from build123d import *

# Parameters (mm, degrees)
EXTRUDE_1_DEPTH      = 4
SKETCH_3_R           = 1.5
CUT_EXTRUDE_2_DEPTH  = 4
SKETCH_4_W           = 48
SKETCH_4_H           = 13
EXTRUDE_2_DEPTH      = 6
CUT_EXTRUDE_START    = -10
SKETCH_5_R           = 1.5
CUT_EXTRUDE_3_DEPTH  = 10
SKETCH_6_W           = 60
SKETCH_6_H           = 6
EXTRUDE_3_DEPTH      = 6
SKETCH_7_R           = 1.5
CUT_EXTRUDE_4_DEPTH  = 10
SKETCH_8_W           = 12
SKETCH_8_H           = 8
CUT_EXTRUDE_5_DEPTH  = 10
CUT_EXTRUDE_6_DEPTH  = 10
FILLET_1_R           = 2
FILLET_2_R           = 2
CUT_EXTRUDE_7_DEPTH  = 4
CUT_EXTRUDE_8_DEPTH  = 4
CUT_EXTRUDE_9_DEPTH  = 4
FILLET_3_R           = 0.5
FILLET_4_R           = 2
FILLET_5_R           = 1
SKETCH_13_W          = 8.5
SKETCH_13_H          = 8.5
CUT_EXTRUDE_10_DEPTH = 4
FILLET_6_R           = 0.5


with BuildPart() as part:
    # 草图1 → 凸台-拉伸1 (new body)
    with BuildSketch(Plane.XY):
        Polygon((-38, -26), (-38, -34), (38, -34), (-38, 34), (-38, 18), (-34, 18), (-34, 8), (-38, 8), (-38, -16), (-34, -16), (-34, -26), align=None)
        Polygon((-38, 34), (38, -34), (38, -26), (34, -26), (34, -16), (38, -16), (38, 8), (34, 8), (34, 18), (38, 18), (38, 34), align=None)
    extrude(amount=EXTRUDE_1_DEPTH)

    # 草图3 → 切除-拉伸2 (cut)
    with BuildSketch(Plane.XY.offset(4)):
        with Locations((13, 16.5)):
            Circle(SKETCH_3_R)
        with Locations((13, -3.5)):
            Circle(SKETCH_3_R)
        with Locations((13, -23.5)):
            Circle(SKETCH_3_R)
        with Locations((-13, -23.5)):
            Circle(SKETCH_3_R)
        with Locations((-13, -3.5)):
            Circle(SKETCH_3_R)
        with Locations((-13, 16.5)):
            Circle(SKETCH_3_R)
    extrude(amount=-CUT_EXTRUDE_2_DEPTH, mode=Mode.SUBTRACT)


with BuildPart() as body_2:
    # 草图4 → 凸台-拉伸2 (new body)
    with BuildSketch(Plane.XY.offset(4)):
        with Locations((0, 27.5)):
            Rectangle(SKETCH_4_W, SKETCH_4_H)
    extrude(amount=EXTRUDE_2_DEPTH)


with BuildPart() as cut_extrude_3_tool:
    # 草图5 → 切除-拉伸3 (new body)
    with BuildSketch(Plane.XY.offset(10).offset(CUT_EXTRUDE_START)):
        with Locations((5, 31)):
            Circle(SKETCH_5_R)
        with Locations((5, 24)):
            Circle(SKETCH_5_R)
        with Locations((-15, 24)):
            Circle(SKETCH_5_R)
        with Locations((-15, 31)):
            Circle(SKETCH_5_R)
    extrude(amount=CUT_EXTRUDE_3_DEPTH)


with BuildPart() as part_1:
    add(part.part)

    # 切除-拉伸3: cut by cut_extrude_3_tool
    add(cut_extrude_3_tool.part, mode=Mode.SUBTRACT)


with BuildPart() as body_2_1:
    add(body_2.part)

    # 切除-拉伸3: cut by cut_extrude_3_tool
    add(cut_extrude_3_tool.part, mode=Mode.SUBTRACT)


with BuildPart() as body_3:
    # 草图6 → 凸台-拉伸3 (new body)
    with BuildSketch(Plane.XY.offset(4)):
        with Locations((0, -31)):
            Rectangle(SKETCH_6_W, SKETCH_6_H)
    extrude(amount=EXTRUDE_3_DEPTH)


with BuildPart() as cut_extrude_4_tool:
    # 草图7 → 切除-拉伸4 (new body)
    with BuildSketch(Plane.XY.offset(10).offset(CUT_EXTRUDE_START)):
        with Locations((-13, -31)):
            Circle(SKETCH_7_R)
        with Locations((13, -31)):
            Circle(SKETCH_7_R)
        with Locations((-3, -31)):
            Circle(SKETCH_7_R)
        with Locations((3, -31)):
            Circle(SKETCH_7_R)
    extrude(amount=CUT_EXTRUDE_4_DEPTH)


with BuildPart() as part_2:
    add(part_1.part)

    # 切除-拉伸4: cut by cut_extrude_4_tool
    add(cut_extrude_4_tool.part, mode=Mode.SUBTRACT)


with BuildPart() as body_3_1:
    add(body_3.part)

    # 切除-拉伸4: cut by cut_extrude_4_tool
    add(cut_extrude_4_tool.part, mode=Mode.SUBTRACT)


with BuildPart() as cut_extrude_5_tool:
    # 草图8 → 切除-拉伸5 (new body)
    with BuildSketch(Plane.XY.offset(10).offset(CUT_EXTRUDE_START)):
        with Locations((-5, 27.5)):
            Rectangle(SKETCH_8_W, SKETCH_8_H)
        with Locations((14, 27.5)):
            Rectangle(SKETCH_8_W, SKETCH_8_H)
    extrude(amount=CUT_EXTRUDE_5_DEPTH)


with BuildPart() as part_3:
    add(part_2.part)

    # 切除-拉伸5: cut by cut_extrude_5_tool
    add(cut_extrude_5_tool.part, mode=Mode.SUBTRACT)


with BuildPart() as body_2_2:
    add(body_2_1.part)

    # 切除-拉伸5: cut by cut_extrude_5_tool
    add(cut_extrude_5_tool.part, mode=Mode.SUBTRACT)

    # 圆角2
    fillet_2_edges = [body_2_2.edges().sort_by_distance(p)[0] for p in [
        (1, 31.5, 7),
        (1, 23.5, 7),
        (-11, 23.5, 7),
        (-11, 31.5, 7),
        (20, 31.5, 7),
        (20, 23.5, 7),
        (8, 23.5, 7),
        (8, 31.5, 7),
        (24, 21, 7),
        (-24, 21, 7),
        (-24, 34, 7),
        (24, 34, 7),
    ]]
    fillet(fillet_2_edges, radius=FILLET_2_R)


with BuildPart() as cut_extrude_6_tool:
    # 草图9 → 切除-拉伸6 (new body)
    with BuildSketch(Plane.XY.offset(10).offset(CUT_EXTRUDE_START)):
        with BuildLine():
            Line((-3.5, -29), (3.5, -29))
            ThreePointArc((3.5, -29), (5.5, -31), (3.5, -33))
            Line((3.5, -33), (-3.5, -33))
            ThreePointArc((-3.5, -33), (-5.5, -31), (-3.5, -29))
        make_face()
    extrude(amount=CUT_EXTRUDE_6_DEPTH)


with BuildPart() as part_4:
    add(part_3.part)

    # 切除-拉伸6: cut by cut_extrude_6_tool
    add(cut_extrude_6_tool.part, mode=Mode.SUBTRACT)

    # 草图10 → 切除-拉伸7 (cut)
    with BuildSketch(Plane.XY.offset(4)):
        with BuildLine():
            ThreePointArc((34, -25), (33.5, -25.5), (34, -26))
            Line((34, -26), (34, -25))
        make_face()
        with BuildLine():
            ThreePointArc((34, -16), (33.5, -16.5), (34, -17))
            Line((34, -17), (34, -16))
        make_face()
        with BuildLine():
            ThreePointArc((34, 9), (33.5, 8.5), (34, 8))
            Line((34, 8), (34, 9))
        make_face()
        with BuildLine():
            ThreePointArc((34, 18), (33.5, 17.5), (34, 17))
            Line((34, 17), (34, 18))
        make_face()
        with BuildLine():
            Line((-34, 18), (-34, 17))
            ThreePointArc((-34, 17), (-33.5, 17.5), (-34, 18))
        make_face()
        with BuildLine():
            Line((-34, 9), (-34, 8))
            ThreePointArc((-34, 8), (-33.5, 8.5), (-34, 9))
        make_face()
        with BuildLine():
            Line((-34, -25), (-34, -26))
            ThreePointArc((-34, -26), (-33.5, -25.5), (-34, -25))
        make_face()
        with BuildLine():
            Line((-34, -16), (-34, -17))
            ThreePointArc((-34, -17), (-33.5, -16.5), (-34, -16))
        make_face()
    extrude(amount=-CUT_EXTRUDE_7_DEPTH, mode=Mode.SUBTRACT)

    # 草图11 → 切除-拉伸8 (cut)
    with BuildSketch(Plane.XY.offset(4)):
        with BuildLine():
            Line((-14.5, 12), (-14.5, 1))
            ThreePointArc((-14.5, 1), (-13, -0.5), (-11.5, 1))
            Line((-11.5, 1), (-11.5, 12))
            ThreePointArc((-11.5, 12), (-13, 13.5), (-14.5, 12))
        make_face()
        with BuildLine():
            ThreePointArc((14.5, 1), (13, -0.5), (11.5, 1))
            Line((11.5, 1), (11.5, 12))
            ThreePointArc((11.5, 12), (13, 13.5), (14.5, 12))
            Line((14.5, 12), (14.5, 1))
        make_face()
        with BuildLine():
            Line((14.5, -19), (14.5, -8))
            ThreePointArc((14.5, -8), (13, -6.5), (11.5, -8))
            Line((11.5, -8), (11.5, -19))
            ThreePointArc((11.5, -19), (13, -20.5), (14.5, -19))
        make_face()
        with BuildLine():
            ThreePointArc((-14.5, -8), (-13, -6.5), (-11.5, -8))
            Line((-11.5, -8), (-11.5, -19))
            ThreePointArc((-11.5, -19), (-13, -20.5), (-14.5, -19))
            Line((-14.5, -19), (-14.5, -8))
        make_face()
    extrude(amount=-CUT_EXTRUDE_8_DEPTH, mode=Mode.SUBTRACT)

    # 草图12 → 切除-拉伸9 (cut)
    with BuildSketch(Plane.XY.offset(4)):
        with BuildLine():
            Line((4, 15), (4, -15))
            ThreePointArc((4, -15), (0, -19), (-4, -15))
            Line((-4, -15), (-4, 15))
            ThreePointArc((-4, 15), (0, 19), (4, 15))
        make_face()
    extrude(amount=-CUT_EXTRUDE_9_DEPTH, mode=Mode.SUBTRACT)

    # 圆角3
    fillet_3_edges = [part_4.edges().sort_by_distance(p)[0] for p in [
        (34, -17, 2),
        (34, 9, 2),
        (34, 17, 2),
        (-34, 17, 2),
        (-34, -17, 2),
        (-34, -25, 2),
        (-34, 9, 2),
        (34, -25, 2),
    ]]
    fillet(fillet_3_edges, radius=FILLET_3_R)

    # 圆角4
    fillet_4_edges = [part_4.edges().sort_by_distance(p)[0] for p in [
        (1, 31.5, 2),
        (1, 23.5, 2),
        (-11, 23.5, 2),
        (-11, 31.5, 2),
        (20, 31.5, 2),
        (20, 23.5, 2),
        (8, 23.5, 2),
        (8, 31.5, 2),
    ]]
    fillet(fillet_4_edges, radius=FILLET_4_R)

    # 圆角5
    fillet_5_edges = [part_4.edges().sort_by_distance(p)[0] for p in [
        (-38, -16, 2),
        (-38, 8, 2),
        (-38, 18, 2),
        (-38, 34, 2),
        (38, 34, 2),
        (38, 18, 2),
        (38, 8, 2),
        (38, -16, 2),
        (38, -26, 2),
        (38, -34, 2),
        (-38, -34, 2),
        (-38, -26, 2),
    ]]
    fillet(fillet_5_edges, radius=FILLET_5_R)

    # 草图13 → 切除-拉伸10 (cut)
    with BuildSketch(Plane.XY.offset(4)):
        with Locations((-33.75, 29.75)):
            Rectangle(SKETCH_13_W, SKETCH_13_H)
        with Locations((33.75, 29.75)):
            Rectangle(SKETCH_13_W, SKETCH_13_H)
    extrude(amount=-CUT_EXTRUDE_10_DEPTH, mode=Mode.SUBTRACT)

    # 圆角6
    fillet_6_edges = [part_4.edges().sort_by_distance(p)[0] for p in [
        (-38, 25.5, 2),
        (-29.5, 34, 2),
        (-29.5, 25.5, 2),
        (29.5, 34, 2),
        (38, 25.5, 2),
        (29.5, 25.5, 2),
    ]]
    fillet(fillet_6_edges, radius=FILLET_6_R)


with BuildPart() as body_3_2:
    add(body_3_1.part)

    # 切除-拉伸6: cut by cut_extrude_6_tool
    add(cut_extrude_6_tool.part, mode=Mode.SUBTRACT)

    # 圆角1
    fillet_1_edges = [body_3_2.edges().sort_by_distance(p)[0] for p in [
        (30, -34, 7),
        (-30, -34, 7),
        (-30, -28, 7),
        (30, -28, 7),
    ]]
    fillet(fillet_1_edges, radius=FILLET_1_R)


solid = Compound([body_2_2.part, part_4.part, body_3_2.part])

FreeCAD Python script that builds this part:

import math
import FreeCAD as App
import Part
import Sketcher

V = App.Vector
Q = App.Units.Quantity


def edges_at(feature, points):
    """Names of the edges that pass closest to the given points."""
    edges = feature.Shape.Edges
    near = lambda p: min(range(len(edges)), key=lambda i: edges[i].distToShape(Part.Vertex(*p))[0])
    return sorted({f"Edge{near(p) + 1}" for p in points})

doc = App.newDocument("Part")
body = doc.addObject("PartDesign::Body", "Body")

sketch1 = body.newObject("Sketcher::SketchObject", "Sketch")
sketch1.AttachmentSupport = (doc.getObject("XY_Plane"), [""])
sketch1.MapMode = "FlatFace"
sketch1.addGeometry(Part.LineSegment(V(-38, -26, 0), V(-38, -34, 0)), False)
sketch1.addGeometry(Part.LineSegment(V(-38, -34, 0), V(38, -34, 0)), False)
sketch1.addGeometry(Part.LineSegment(V(38, -34, 0), V(38, -26, 0)), False)
sketch1.addGeometry(Part.LineSegment(V(38, -26, 0), V(34, -26, 0)), False)
sketch1.addGeometry(Part.LineSegment(V(34, -26, 0), V(34, -16, 0)), False)
sketch1.addGeometry(Part.LineSegment(V(34, -16, 0), V(38, -16, 0)), False)
sketch1.addGeometry(Part.LineSegment(V(38, -16, 0), V(38, 8, 0)), False)
sketch1.addGeometry(Part.LineSegment(V(38, 8, 0), V(34, 8, 0)), False)
sketch1.addGeometry(Part.LineSegment(V(34, 8, 0), V(34, 18, 0)), False)
sketch1.addGeometry(Part.LineSegment(V(34, 18, 0), V(38, 18, 0)), False)
sketch1.addGeometry(Part.LineSegment(V(38, 18, 0), V(38, 34, 0)), False)
sketch1.addGeometry(Part.LineSegment(V(38, 34, 0), V(-38, 34, 0)), False)
sketch1.addGeometry(Part.LineSegment(V(-38, 34, 0), V(-38, 18, 0)), False)
sketch1.addGeometry(Part.LineSegment(V(-38, 18, 0), V(-34, 18, 0)), False)
sketch1.addGeometry(Part.LineSegment(V(-34, 18, 0), V(-34, 8, 0)), False)
sketch1.addGeometry(Part.LineSegment(V(-34, 8, 0), V(-38, 8, 0)), False)
sketch1.addGeometry(Part.LineSegment(V(-38, 8, 0), V(-38, -16, 0)), False)
sketch1.addGeometry(Part.LineSegment(V(-38, -16, 0), V(-34, -16, 0)), False)
sketch1.addGeometry(Part.LineSegment(V(-34, -16, 0), V(-34, -26, 0)), False)
sketch1.addGeometry(Part.LineSegment(V(-34, -26, 0), V(-38, -26, 0)), False)
sketch1.addConstraint(Sketcher.Constraint("Coincident", 0, 2, 1, 1))
sketch1.addConstraint(Sketcher.Constraint("Coincident", 1, 2, 2, 1))
sketch1.addConstraint(Sketcher.Constraint("Coincident", 2, 2, 3, 1))
sketch1.addConstraint(Sketcher.Constraint("Coincident", 3, 2, 4, 1))
sketch1.addConstraint(Sketcher.Constraint("Coincident", 4, 2, 5, 1))
sketch1.addConstraint(Sketcher.Constraint("Coincident", 5, 2, 6, 1))
sketch1.addConstraint(Sketcher.Constraint("Coincident", 6, 2, 7, 1))
sketch1.addConstraint(Sketcher.Constraint("Coincident", 7, 2, 8, 1))
sketch1.addConstraint(Sketcher.Constraint("Coincident", 8, 2, 9, 1))
sketch1.addConstraint(Sketcher.Constraint("Coincident", 9, 2, 10, 1))
sketch1.addConstraint(Sketcher.Constraint("Coincident", 10, 2, 11, 1))
sketch1.addConstraint(Sketcher.Constraint("Coincident", 11, 2, 12, 1))
sketch1.addConstraint(Sketcher.Constraint("Coincident", 12, 2, 13, 1))
sketch1.addConstraint(Sketcher.Constraint("Coincident", 13, 2, 14, 1))
sketch1.addConstraint(Sketcher.Constraint("Coincident", 14, 2, 15, 1))
sketch1.addConstraint(Sketcher.Constraint("Coincident", 15, 2, 16, 1))
sketch1.addConstraint(Sketcher.Constraint("Coincident", 16, 2, 17, 1))
sketch1.addConstraint(Sketcher.Constraint("Coincident", 17, 2, 18, 1))
sketch1.addConstraint(Sketcher.Constraint("Coincident", 18, 2, 19, 1))
sketch1.addConstraint(Sketcher.Constraint("Coincident", 19, 2, 0, 1))
sketch1.addConstraint(Sketcher.Constraint("Vertical", 0))
sketch1.addConstraint(Sketcher.Constraint("Horizontal", 1))
sketch1.addConstraint(Sketcher.Constraint("Vertical", 2))
sketch1.addConstraint(Sketcher.Constraint("Horizontal", 3))
sketch1.addConstraint(Sketcher.Constraint("Vertical", 4))
sketch1.addConstraint(Sketcher.Constraint("Horizontal", 5))
sketch1.addConstraint(Sketcher.Constraint("Vertical", 6))
sketch1.addConstraint(Sketcher.Constraint("Horizontal", 7))
sketch1.addConstraint(Sketcher.Constraint("Vertical", 8))
sketch1.addConstraint(Sketcher.Constraint("Horizontal", 9))
sketch1.addConstraint(Sketcher.Constraint("Vertical", 10))
sketch1.addConstraint(Sketcher.Constraint("Horizontal", 11))
sketch1.addConstraint(Sketcher.Constraint("Vertical", 12))
sketch1.addConstraint(Sketcher.Constraint("Horizontal", 13))
sketch1.addConstraint(Sketcher.Constraint("Vertical", 14))
sketch1.addConstraint(Sketcher.Constraint("Horizontal", 15))
sketch1.addConstraint(Sketcher.Constraint("Vertical", 16))
sketch1.addConstraint(Sketcher.Constraint("Horizontal", 17))
sketch1.addConstraint(Sketcher.Constraint("Vertical", 18))
sketch1.addConstraint(Sketcher.Constraint("Horizontal", 19))
sketch1.addConstraint(Sketcher.Constraint("Symmetric", 0, 2, 10, 2, -1, 1))
sketch1.addConstraint(Sketcher.Constraint("Symmetric", 9, 2, 12, 2, -2))
sketch1.addConstraint(Sketcher.Constraint("Symmetric", 7, 2, 14, 2, -2))
sketch1.addConstraint(Sketcher.Constraint("Symmetric", 5, 2, 16, 2, -2))
sketch1.addConstraint(Sketcher.Constraint("Symmetric", 3, 2, 18, 2, -2))
sketch1.addConstraint(Sketcher.Constraint("Vertical", 2, 2, 5, 2))
sketch1.addConstraint(Sketcher.Constraint("Vertical", 4, 2, 7, 2))
sketch1.addConstraint(Sketcher.Constraint("Vertical", 6, 2, 9, 2))
sketch1.addConstraint(Sketcher.Constraint("Equal", 4, 8))
sketch1.addConstraint(Sketcher.Constraint("DistanceX", 1, 1, 1, 2, Q("76 mm")))
sketch1.addConstraint(Sketcher.Constraint("DistanceX", 3, 2, 3, 1, Q("4 mm")))
sketch1.addConstraint(Sketcher.Constraint("DistanceY", 0, 2, 0, 1, Q("8 mm")))
sketch1.addConstraint(Sketcher.Constraint("DistanceY", 4, 1, 4, 2, Q("10 mm")))
sketch1.addConstraint(Sketcher.Constraint("DistanceY", 6, 1, 6, 2, Q("24 mm")))
sketch1.addConstraint(Sketcher.Constraint("DistanceY", 10, 1, 10, 2, Q("16 mm")))
pad1 = body.newObject("PartDesign::Pad", "Pad")
pad1.Profile = sketch1
pad1.Length = 4

sketch2 = body.newObject("Sketcher::SketchObject", "Sketch001")
sketch2.AttachmentSupport = (doc.getObject("XY_Plane"), [""])
sketch2.MapMode = "FlatFace"
sketch2.AttachmentOffset = App.Placement(V(0, 0, 4), App.Rotation())
sketch2.addGeometry(Part.Circle(V(13, 16.5, 0), V(0, 0, 1), 1.5), False)
sketch2.addGeometry(Part.Circle(V(13, -3.5, 0), V(0, 0, 1), 1.5), False)
sketch2.addGeometry(Part.Circle(V(13, -23.5, 0), V(0, 0, 1), 1.5), False)
sketch2.addGeometry(Part.Circle(V(-13, -23.5, 0), V(0, 0, 1), 1.5), False)
sketch2.addGeometry(Part.Circle(V(-13, -3.5, 0), V(0, 0, 1), 1.5), False)
sketch2.addGeometry(Part.Circle(V(-13, 16.5, 0), V(0, 0, 1), 1.5), False)
sketch2.addConstraint(Sketcher.Constraint("Equal", 0, 1))
sketch2.addConstraint(Sketcher.Constraint("Equal", 1, 2))
sketch2.addConstraint(Sketcher.Constraint("Equal", 2, 3))
sketch2.addConstraint(Sketcher.Constraint("Equal", 3, 4))
sketch2.addConstraint(Sketcher.Constraint("Equal", 4, 5))
sketch2.addConstraint(Sketcher.Constraint("Symmetric", 2, 3, 3, 3, -2))
sketch2.addConstraint(Sketcher.Constraint("Symmetric", 1, 3, 4, 3, -2))
sketch2.addConstraint(Sketcher.Constraint("Symmetric", 0, 3, 5, 3, -2))
sketch2.addConstraint(Sketcher.Constraint("Vertical", 0, 3, 1, 3))
sketch2.addConstraint(Sketcher.Constraint("Vertical", 1, 3, 2, 3))
sketch2.addConstraint(Sketcher.Constraint("Diameter", 0, Q("3 mm")))
sketch2.addConstraint(Sketcher.Constraint("DistanceX", -1, 1, 0, 3, Q("13 mm")))
sketch2.addConstraint(Sketcher.Constraint("DistanceY", 1, 3, 0, 3, Q("20 mm")))
sketch2.addConstraint(Sketcher.Constraint("DistanceY", 2, 3, 1, 3, Q("20 mm")))
sketch2.addConstraint(Sketcher.Constraint("DistanceY", -1, 1, 0, 3, Q("16.5 mm")))
pocket1 = body.newObject("PartDesign::Pocket", "Pocket")
pocket1.Profile = sketch2
pocket1.Length = 4
body2 = doc.addObject("PartDesign::Body", "Body001")

sketch3 = body2.newObject("Sketcher::SketchObject", "Sketch002")
sketch3.AttachmentSupport = (doc.getObject("XY_Plane001"), [""])
sketch3.MapMode = "FlatFace"
sketch3.AttachmentOffset = App.Placement(V(0, 0, 4), App.Rotation())
sketch3.addGeometry(Part.LineSegment(V(-24, 34, 0), V(-24, 21, 0)), False)
sketch3.addGeometry(Part.LineSegment(V(-24, 21, 0), V(24, 21, 0)), False)
sketch3.addGeometry(Part.LineSegment(V(24, 21, 0), V(24, 34, 0)), False)
sketch3.addGeometry(Part.LineSegment(V(24, 34, 0), V(-24, 34, 0)), False)
sketch3.addConstraint(Sketcher.Constraint("Coincident", 0, 2, 1, 1))
sketch3.addConstraint(Sketcher.Constraint("Coincident", 1, 2, 2, 1))
sketch3.addConstraint(Sketcher.Constraint("Coincident", 2, 2, 3, 1))
sketch3.addConstraint(Sketcher.Constraint("Coincident", 3, 2, 0, 1))
sketch3.addConstraint(Sketcher.Constraint("Vertical", 0))
sketch3.addConstraint(Sketcher.Constraint("Horizontal", 1))
sketch3.addConstraint(Sketcher.Constraint("Vertical", 2))
sketch3.addConstraint(Sketcher.Constraint("Horizontal", 3))
sketch3.addConstraint(Sketcher.Constraint("DistanceX", 1, 1, 1, 2, Q("48 mm")))
sketch3.addConstraint(Sketcher.Constraint("DistanceY", 0, 2, 0, 1, Q("13 mm")))
sketch3.addConstraint(Sketcher.Constraint("DistanceX", 0, 2, -1, 1, Q("24 mm")))
sketch3.addConstraint(Sketcher.Constraint("DistanceY", -1, 1, 0, 2, Q("21 mm")))
pad2 = body2.newObject("PartDesign::Pad", "Pad001")
pad2.Profile = sketch3
pad2.Length = 6
body3 = doc.addObject("PartDesign::Body", "Body002")
body3.AllowCompound = True

sketch4 = body3.newObject("Sketcher::SketchObject", "Sketch003")
sketch4.AttachmentSupport = (doc.getObject("XY_Plane002"), [""])
sketch4.MapMode = "FlatFace"
sketch4.addGeometry(Part.Circle(V(5, 31, 0), V(0, 0, 1), 1.5), False)
sketch4.addGeometry(Part.Circle(V(5, 24, 0), V(0, 0, 1), 1.5), False)
sketch4.addGeometry(Part.Circle(V(-15, 24, 0), V(0, 0, 1), 1.5), False)
sketch4.addGeometry(Part.Circle(V(-15, 31, 0), V(0, 0, 1), 1.5), False)
sketch4.addConstraint(Sketcher.Constraint("Equal", 0, 1))
sketch4.addConstraint(Sketcher.Constraint("Equal", 1, 2))
sketch4.addConstraint(Sketcher.Constraint("Equal", 2, 3))
sketch4.addConstraint(Sketcher.Constraint("Horizontal", 1, 3, 2, 3))
sketch4.addConstraint(Sketcher.Constraint("Horizontal", 0, 3, 3, 3))
sketch4.addConstraint(Sketcher.Constraint("Vertical", 0, 3, 1, 3))
sketch4.addConstraint(Sketcher.Constraint("Vertical", 2, 3, 3, 3))
sketch4.addConstraint(Sketcher.Constraint("Diameter", 0, Q("3 mm")))
sketch4.addConstraint(Sketcher.Constraint("DistanceX", -1, 1, 0, 3, Q("5 mm")))
sketch4.addConstraint(Sketcher.Constraint("DistanceY", -1, 1, 0, 3, Q("31 mm")))
sketch4.addConstraint(Sketcher.Constraint("DistanceY", -1, 1, 1, 3, Q("24 mm")))
sketch4.addConstraint(Sketcher.Constraint("DistanceX", 2, 3, -1, 1, Q("15 mm")))
pad3 = body3.newObject("PartDesign::Pad", "Pad002")
pad3.Profile = sketch4
pad3.Length = 10
doc.recompute()

body4 = doc.addObject("PartDesign::Body", "Body003")
body4.BaseFeature = body3
boolean = body.newObject("PartDesign::Boolean", "Boolean")
boolean.Type = "Cut"
boolean.addObjects([body4])
doc.recompute()

boolean2 = body2.newObject("PartDesign::Boolean", "Boolean001")
boolean2.Type = "Cut"
boolean2.addObjects([body3])
body5 = doc.addObject("PartDesign::Body", "Body004")

sketch5 = body5.newObject("Sketcher::SketchObject", "Sketch004")
sketch5.AttachmentSupport = (doc.getObject("XY_Plane004"), [""])
sketch5.MapMode = "FlatFace"
sketch5.AttachmentOffset = App.Placement(V(0, 0, 4), App.Rotation())
sketch5.addGeometry(Part.LineSegment(V(-30, -28, 0), V(-30, -34, 0)), False)
sketch5.addGeometry(Part.LineSegment(V(-30, -34, 0), V(30, -34, 0)), False)
sketch5.addGeometry(Part.LineSegment(V(30, -34, 0), V(30, -28, 0)), False)
sketch5.addGeometry(Part.LineSegment(V(30, -28, 0), V(-30, -28, 0)), False)
sketch5.addConstraint(Sketcher.Constraint("Coincident", 0, 2, 1, 1))
sketch5.addConstraint(Sketcher.Constraint("Coincident", 1, 2, 2, 1))
sketch5.addConstraint(Sketcher.Constraint("Coincident", 2, 2, 3, 1))
sketch5.addConstraint(Sketcher.Constraint("Coincident", 3, 2, 0, 1))
sketch5.addConstraint(Sketcher.Constraint("Vertical", 0))
sketch5.addConstraint(Sketcher.Constraint("Horizontal", 1))
sketch5.addConstraint(Sketcher.Constraint("Vertical", 2))
sketch5.addConstraint(Sketcher.Constraint("Horizontal", 3))
sketch5.addConstraint(Sketcher.Constraint("DistanceX", 1, 1, 1, 2, Q("60 mm")))
sketch5.addConstraint(Sketcher.Constraint("DistanceY", 0, 2, 0, 1, Q("6 mm")))
sketch5.addConstraint(Sketcher.Constraint("DistanceX", 0, 2, -1, 1, Q("30 mm")))
sketch5.addConstraint(Sketcher.Constraint("DistanceY", 0, 2, -1, 1, Q("34 mm")))
pad4 = body5.newObject("PartDesign::Pad", "Pad003")
pad4.Profile = sketch5
pad4.Length = 6
body6 = doc.addObject("PartDesign::Body", "Body005")
body6.AllowCompound = True

sketch6 = body6.newObject("Sketcher::SketchObject", "Sketch005")
sketch6.AttachmentSupport = (doc.getObject("XY_Plane005"), [""])
sketch6.MapMode = "FlatFace"
sketch6.addGeometry(Part.Circle(V(-13, -31, 0), V(0, 0, 1), 1.5), False)
sketch6.addGeometry(Part.Circle(V(13, -31, 0), V(0, 0, 1), 1.5), False)
sketch6.addGeometry(Part.Circle(V(-3, -31, 0), V(0, 0, 1), 1.5), False)
sketch6.addGeometry(Part.Circle(V(3, -31, 0), V(0, 0, 1), 1.5), False)
sketch6.addConstraint(Sketcher.Constraint("Equal", 0, 1))
sketch6.addConstraint(Sketcher.Constraint("Equal", 1, 2))
sketch6.addConstraint(Sketcher.Constraint("Equal", 2, 3))
sketch6.addConstraint(Sketcher.Constraint("Symmetric", 0, 3, 1, 3, -2))
sketch6.addConstraint(Sketcher.Constraint("Symmetric", 2, 3, 3, 3, -2))
sketch6.addConstraint(Sketcher.Constraint("Horizontal", 1, 3, 2, 3))
sketch6.addConstraint(Sketcher.Constraint("Diameter", 0, Q("3 mm")))
sketch6.addConstraint(Sketcher.Constraint("DistanceX", 0, 3, -1, 1, Q("13 mm")))
sketch6.addConstraint(Sketcher.Constraint("DistanceY", 0, 3, -1, 1, Q("31 mm")))
sketch6.addConstraint(Sketcher.Constraint("DistanceX", 2, 3, -1, 1, Q("3 mm")))
pad5 = body6.newObject("PartDesign::Pad", "Pad004")
pad5.Profile = sketch6
pad5.Length = 10
doc.recompute()

body7 = doc.addObject("PartDesign::Body", "Body006")
body7.BaseFeature = body6
boolean3 = body.newObject("PartDesign::Boolean", "Boolean002")
boolean3.Type = "Cut"
boolean3.addObjects([body7])
doc.recompute()

boolean4 = body5.newObject("PartDesign::Boolean", "Boolean003")
boolean4.Type = "Cut"
boolean4.addObjects([body6])
body8 = doc.addObject("PartDesign::Body", "Body007")
body8.AllowCompound = True

sketch7 = body8.newObject("Sketcher::SketchObject", "Sketch006")
sketch7.AttachmentSupport = (doc.getObject("XY_Plane007"), [""])
sketch7.MapMode = "FlatFace"
sketch7.addGeometry(Part.LineSegment(V(-11, 32, 0), V(-11, 24, 0)), False)
sketch7.addGeometry(Part.LineSegment(V(-11, 24, 0), V(1, 24, 0)), False)
sketch7.addGeometry(Part.LineSegment(V(1, 24, 0), V(1, 32, 0)), False)
sketch7.addGeometry(Part.LineSegment(V(1, 32, 0), V(-11, 32, 0)), False)
sketch7.addGeometry(Part.LineSegment(V(8, 32, 0), V(8, 24, 0)), False)
sketch7.addGeometry(Part.LineSegment(V(8, 24, 0), V(20, 24, 0)), False)
sketch7.addGeometry(Part.LineSegment(V(20, 24, 0), V(20, 32, 0)), False)
sketch7.addGeometry(Part.LineSegment(V(20, 32, 0), V(8, 32, 0)), False)
sketch7.addConstraint(Sketcher.Constraint("Coincident", 0, 2, 1, 1))
sketch7.addConstraint(Sketcher.Constraint("Coincident", 1, 2, 2, 1))
sketch7.addConstraint(Sketcher.Constraint("Coincident", 2, 2, 3, 1))
sketch7.addConstraint(Sketcher.Constraint("Coincident", 3, 2, 0, 1))
sketch7.addConstraint(Sketcher.Constraint("Coincident", 4, 2, 5, 1))
sketch7.addConstraint(Sketcher.Constraint("Coincident", 5, 2, 6, 1))
sketch7.addConstraint(Sketcher.Constraint("Coincident", 6, 2, 7, 1))
sketch7.addConstraint(Sketcher.Constraint("Coincident", 7, 2, 4, 1))
sketch7.addConstraint(Sketcher.Constraint("Vertical", 0))
sketch7.addConstraint(Sketcher.Constraint("Horizontal", 1))
sketch7.addConstraint(Sketcher.Constraint("Vertical", 2))
sketch7.addConstraint(Sketcher.Constraint("Horizontal", 3))
sketch7.addConstraint(Sketcher.Constraint("Vertical", 4))
sketch7.addConstraint(Sketcher.Constraint("Horizontal", 5))
sketch7.addConstraint(Sketcher.Constraint("Vertical", 6))
sketch7.addConstraint(Sketcher.Constraint("Horizontal", 7))
sketch7.addConstraint(Sketcher.Constraint("Horizontal", 1, 2, 4, 2))
sketch7.addConstraint(Sketcher.Constraint("Horizontal", 3, 2, 6, 2))
sketch7.addConstraint(Sketcher.Constraint("Equal", 3, 5))
sketch7.addConstraint(Sketcher.Constraint("DistanceX", 1, 1, 1, 2, Q("12 mm")))
sketch7.addConstraint(Sketcher.Constraint("DistanceY", 0, 2, 0, 1, Q("8 mm")))
sketch7.addConstraint(Sketcher.Constraint("DistanceX", 0, 2, -1, 1, Q("11 mm")))
sketch7.addConstraint(Sketcher.Constraint("DistanceX", -1, 1, 4, 2, Q("8 mm")))
sketch7.addConstraint(Sketcher.Constraint("DistanceY", -1, 1, 0, 2, Q("23.5 mm")))
pad6 = body8.newObject("PartDesign::Pad", "Pad005")
pad6.Profile = sketch7
pad6.Length = 10
doc.recompute()

body9 = doc.addObject("PartDesign::Body", "Body008")
body9.BaseFeature = body8
boolean5 = body.newObject("PartDesign::Boolean", "Boolean004")
boolean5.Type = "Cut"
boolean5.addObjects([body9])
doc.recompute()

boolean6 = body2.newObject("PartDesign::Boolean", "Boolean005")
boolean6.Type = "Cut"
boolean6.addObjects([body8])
doc.recompute()

fillet = body2.newObject("PartDesign::Fillet", "Fillet")
fillet.Base = (boolean6, edges_at(boolean6, [
    (1, 31.5, 7),
    (1, 23.5, 7),
    (-11, 23.5, 7),
    (-11, 31.5, 7),
    (20, 31.5, 7),
    (20, 23.5, 7),
    (8, 23.5, 7),
    (8, 31.5, 7),
    (24, 21, 7),
    (-24, 21, 7),
    (-24, 34, 7),
    (24, 34, 7),
]))
fillet.Radius = 2
body10 = doc.addObject("PartDesign::Body", "Body009")

sketch8 = body10.newObject("Sketcher::SketchObject", "Sketch007")
sketch8.AttachmentSupport = (doc.getObject("XY_Plane009"), [""])
sketch8.MapMode = "FlatFace"
sketch8.addGeometry(Part.LineSegment(V(3.5, -29, 0), V(-3.5, -29, 0)), False)
sketch8.addGeometry(Part.ArcOfCircle(Part.Circle(V(-3.5, -31, 0), V(0, 0, 1), 2), math.radians(90), math.radians(270)), False)
sketch8.addGeometry(Part.LineSegment(V(-3.5, -33, 0), V(3.5, -33, 0)), False)
sketch8.addGeometry(Part.ArcOfCircle(Part.Circle(V(3.5, -31, 0), V(0, 0, 1), 2), math.radians(-90), math.radians(90)), False)
sketch8.addConstraint(Sketcher.Constraint("Tangent", 0, 2, 1, 1))
sketch8.addConstraint(Sketcher.Constraint("Tangent", 1, 2, 2, 1))
sketch8.addConstraint(Sketcher.Constraint("Tangent", 2, 2, 3, 1))
sketch8.addConstraint(Sketcher.Constraint("Tangent", 3, 2, 0, 1))
sketch8.addConstraint(Sketcher.Constraint("Horizontal", 0))
sketch8.addConstraint(Sketcher.Constraint("Horizontal", 2))
sketch8.addConstraint(Sketcher.Constraint("Radius", 1, Q("2 mm")))
sketch8.addConstraint(Sketcher.Constraint("DistanceX", 0, 2, 0, 1, Q("7 mm")))
sketch8.addConstraint(Sketcher.Constraint("DistanceY", 1, 3, -1, 1, Q("31 mm")))
sketch8.addConstraint(Sketcher.Constraint("DistanceX", 1, 3, -1, 1, Q("3.5 mm")))
pad7 = body10.newObject("PartDesign::Pad", "Pad006")
pad7.Profile = sketch8
pad7.Length = 10
doc.recompute()

body11 = doc.addObject("PartDesign::Body", "Body010")
body11.BaseFeature = body10
boolean7 = body.newObject("PartDesign::Boolean", "Boolean006")
boolean7.Type = "Cut"
boolean7.addObjects([body11])
doc.recompute()

sketch9 = body.newObject("Sketcher::SketchObject", "Sketch008")
sketch9.AttachmentSupport = (doc.getObject("XY_Plane"), [""])
sketch9.MapMode = "FlatFace"
sketch9.AttachmentOffset = App.Placement(V(0, 0, 4), App.Rotation())
sketch9.addGeometry(Part.ArcOfCircle(Part.Circle(V(34, -25.5, 0), V(0, 0, 1), 0.5), math.radians(90), math.radians(270)), False)
sketch9.addGeometry(Part.LineSegment(V(34, -26, 0), V(34, -25, 0)), False)
sketch9.addGeometry(Part.ArcOfCircle(Part.Circle(V(34, -16.5, 0), V(0, 0, 1), 0.5), math.radians(90), math.radians(270)), False)
sketch9.addGeometry(Part.LineSegment(V(34, -17, 0), V(34, -16, 0)), False)
sketch9.addGeometry(Part.ArcOfCircle(Part.Circle(V(34, 8.5, 0), V(0, 0, 1), 0.5), math.radians(90), math.radians(270)), False)
sketch9.addGeometry(Part.LineSegment(V(34, 8, 0), V(34, 9, 0)), False)
sketch9.addGeometry(Part.ArcOfCircle(Part.Circle(V(34, 17.5, 0), V(0, 0, 1), 0.5), math.radians(90), math.radians(270)), False)
sketch9.addGeometry(Part.LineSegment(V(34, 17, 0), V(34, 18, 0)), False)
sketch9.addGeometry(Part.LineSegment(V(-34, 18, 0), V(-34, 17, 0)), False)
sketch9.addGeometry(Part.ArcOfCircle(Part.Circle(V(-34, 17.5, 0), V(0, 0, 1), 0.5), math.radians(-90), math.radians(90)), False)
sketch9.addGeometry(Part.LineSegment(V(-34, 9, 0), V(-34, 8, 0)), False)
sketch9.addGeometry(Part.ArcOfCircle(Part.Circle(V(-34, 8.5, 0), V(0, 0, 1), 0.5), math.radians(-90), math.radians(90)), False)
sketch9.addGeometry(Part.LineSegment(V(-34, -25, 0), V(-34, -26, 0)), False)
sketch9.addGeometry(Part.ArcOfCircle(Part.Circle(V(-34, -25.5, 0), V(0, 0, 1), 0.5), math.radians(-90), math.radians(90)), False)
sketch9.addGeometry(Part.LineSegment(V(-34, -16, 0), V(-34, -17, 0)), False)
sketch9.addGeometry(Part.ArcOfCircle(Part.Circle(V(-34, -16.5, 0), V(0, 0, 1), 0.5), math.radians(-90), math.radians(90)), False)
sketch9.addConstraint(Sketcher.Constraint("Coincident", 0, 1, 1, 2))
sketch9.addConstraint(Sketcher.Constraint("Coincident", 1, 1, 0, 2))
sketch9.addConstraint(Sketcher.Constraint("Coincident", 2, 1, 3, 2))
sketch9.addConstraint(Sketcher.Constraint("Coincident", 3, 1, 2, 2))
sketch9.addConstraint(Sketcher.Constraint("Coincident", 4, 1, 5, 2))
sketch9.addConstraint(Sketcher.Constraint("Coincident", 5, 1, 4, 2))
sketch9.addConstraint(Sketcher.Constraint("Coincident", 6, 1, 7, 2))
sketch9.addConstraint(Sketcher.Constraint("Coincident", 7, 1, 6, 2))
sketch9.addConstraint(Sketcher.Constraint("Coincident", 8, 1, 9, 2))
sketch9.addConstraint(Sketcher.Constraint("Coincident", 9, 1, 8, 2))
sketch9.addConstraint(Sketcher.Constraint("Coincident", 10, 1, 11, 2))
sketch9.addConstraint(Sketcher.Constraint("Coincident", 11, 1, 10, 2))
sketch9.addConstraint(Sketcher.Constraint("Coincident", 12, 1, 13, 2))
sketch9.addConstraint(Sketcher.Constraint("Coincident", 13, 1, 12, 2))
sketch9.addConstraint(Sketcher.Constraint("Coincident", 14, 1, 15, 2))
sketch9.addConstraint(Sketcher.Constraint("Coincident", 15, 1, 14, 2))
sketch9.addConstraint(Sketcher.Constraint("Vertical", 1))
sketch9.addConstraint(Sketcher.Constraint("Vertical", 3))
sketch9.addConstraint(Sketcher.Constraint("Vertical", 5))
sketch9.addConstraint(Sketcher.Constraint("Vertical", 7))
sketch9.addConstraint(Sketcher.Constraint("Vertical", 8))
sketch9.addConstraint(Sketcher.Constraint("Vertical", 10))
sketch9.addConstraint(Sketcher.Constraint("Vertical", 12))
sketch9.addConstraint(Sketcher.Constraint("Vertical", 14))
sketch9.addConstraint(Sketcher.Constraint("Equal", 0, 2))
sketch9.addConstraint(Sketcher.Constraint("Equal", 2, 4))
sketch9.addConstraint(Sketcher.Constraint("Equal", 4, 6))
sketch9.addConstraint(Sketcher.Constraint("Equal", 6, 9))
sketch9.addConstraint(Sketcher.Constraint("Equal", 9, 11))
sketch9.addConstraint(Sketcher.Constraint("Equal", 11, 13))
sketch9.addConstraint(Sketcher.Constraint("Equal", 13, 15))
sketch9.addConstraint(Sketcher.Constraint("Symmetric", 3, 1, 9, 1, -1, 1))
sketch9.addConstraint(Sketcher.Constraint("Symmetric", 7, 1, 15, 1, -1, 1))
sketch9.addConstraint(Sketcher.Constraint("Symmetric", 6, 3, 9, 3, -2))
sketch9.addConstraint(Sketcher.Constraint("Symmetric", 4, 3, 11, 3, -2))
sketch9.addConstraint(Sketcher.Constraint("Symmetric", 0, 3, 13, 3, -2))
sketch9.addConstraint(Sketcher.Constraint("Vertical", 0, 3, 2, 3))
sketch9.addConstraint(Sketcher.Constraint("Vertical", 2, 3, 4, 3))
sketch9.addConstraint(Sketcher.Constraint("Vertical", 4, 3, 6, 3))
sketch9.addConstraint(Sketcher.Constraint("Vertical", 13, 3, 15, 3))
sketch9.addConstraint(Sketcher.Constraint("Vertical", 6, 3, 0, 1))
sketch9.addConstraint(Sketcher.Constraint("Vertical", 1, 1, 2, 1))
sketch9.addConstraint(Sketcher.Constraint("Vertical", 3, 1, 4, 1))
sketch9.addConstraint(Sketcher.Constraint("Vertical", 5, 1, 6, 1))
sketch9.addConstraint(Sketcher.Constraint("Vertical", 9, 1, 10, 1))
sketch9.addConstraint(Sketcher.Constraint("Vertical", 11, 1, 12, 1))
sketch9.addConstraint(Sketcher.Constraint("Radius", 0, Q("0.5 mm")))
sketch9.addConstraint(Sketcher.Constraint("DistanceX", -1, 1, 0, 3, Q("34 mm")))
sketch9.addConstraint(Sketcher.Constraint("DistanceY", 0, 1, -1, 1, Q("25 mm")))
sketch9.addConstraint(Sketcher.Constraint("DistanceY", 2, 1, -1, 1, Q("16 mm")))
sketch9.addConstraint(Sketcher.Constraint("DistanceY", -1, 1, 4, 1, Q("9 mm")))
pocket2 = body.newObject("PartDesign::Pocket", "Pocket001")
pocket2.Profile = sketch9
pocket2.Length = 4

sketch10 = body.newObject("Sketcher::SketchObject", "Sketch009")
sketch10.AttachmentSupport = (doc.getObject("XY_Plane"), [""])
sketch10.MapMode = "FlatFace"
sketch10.AttachmentOffset = App.Placement(V(0, 0, 4), App.Rotation())
sketch10.addGeometry(Part.LineSegment(V(-14.5, 12, 0), V(-14.5, 1, 0)), False)
sketch10.addGeometry(Part.ArcOfCircle(Part.Circle(V(-13, 1, 0), V(0, 0, 1), 1.5), math.radians(180), math.radians(360)), False)
sketch10.addGeometry(Part.LineSegment(V(-11.5, 1, 0), V(-11.5, 12, 0)), False)
sketch10.addGeometry(Part.ArcOfCircle(Part.Circle(V(-13, 12, 0), V(0, 0, 1), 1.5), math.radians(0), math.radians(180)), False)
sketch10.addGeometry(Part.ArcOfCircle(Part.Circle(V(13, 1, 0), V(0, 0, 1), 1.5), math.radians(180), math.radians(360)), False)
sketch10.addGeometry(Part.LineSegment(V(14.5, 1, 0), V(14.5, 12, 0)), False)
sketch10.addGeometry(Part.ArcOfCircle(Part.Circle(V(13, 12, 0), V(0, 0, 1), 1.5), math.radians(0), math.radians(180)), False)
sketch10.addGeometry(Part.LineSegment(V(11.5, 12, 0), V(11.5, 1, 0)), False)
sketch10.addGeometry(Part.LineSegment(V(14.5, -19, 0), V(14.5, -8, 0)), False)
sketch10.addGeometry(Part.ArcOfCircle(Part.Circle(V(13, -8, 0), V(0, 0, 1), 1.5), math.radians(0), math.radians(180)), False)
sketch10.addGeometry(Part.LineSegment(V(11.5, -8, 0), V(11.5, -19, 0)), False)
sketch10.addGeometry(Part.ArcOfCircle(Part.Circle(V(13, -19, 0), V(0, 0, 1), 1.5), math.radians(180), math.radians(360)), False)
sketch10.addGeometry(Part.ArcOfCircle(Part.Circle(V(-13, -8, 0), V(0, 0, 1), 1.5), math.radians(0), math.radians(180)), False)
sketch10.addGeometry(Part.LineSegment(V(-14.5, -8, 0), V(-14.5, -19, 0)), False)
sketch10.addGeometry(Part.ArcOfCircle(Part.Circle(V(-13, -19, 0), V(0, 0, 1), 1.5), math.radians(180), math.radians(360)), False)
sketch10.addGeometry(Part.LineSegment(V(-11.5, -19, 0), V(-11.5, -8, 0)), False)
sketch10.addConstraint(Sketcher.Constraint("Tangent", 0, 2, 1, 1))
sketch10.addConstraint(Sketcher.Constraint("Tangent", 1, 2, 2, 1))
sketch10.addConstraint(Sketcher.Constraint("Tangent", 2, 2, 3, 1))
sketch10.addConstraint(Sketcher.Constraint("Tangent", 3, 2, 0, 1))
sketch10.addConstraint(Sketcher.Constraint("Tangent", 4, 2, 5, 1))
sketch10.addConstraint(Sketcher.Constraint("Tangent", 5, 2, 6, 1))
sketch10.addConstraint(Sketcher.Constraint("Tangent", 6, 2, 7, 1))
sketch10.addConstraint(Sketcher.Constraint("Tangent", 7, 2, 4, 1))
sketch10.addConstraint(Sketcher.Constraint("Tangent", 8, 2, 9, 1))
sketch10.addConstraint(Sketcher.Constraint("Tangent", 9, 2, 10, 1))
sketch10.addConstraint(Sketcher.Constraint("Tangent", 10, 2, 11, 1))
sketch10.addConstraint(Sketcher.Constraint("Tangent", 11, 2, 8, 1))
sketch10.addConstraint(Sketcher.Constraint("Tangent", 12, 2, 13, 1))
sketch10.addConstraint(Sketcher.Constraint("Tangent", 13, 2, 14, 1))
sketch10.addConstraint(Sketcher.Constraint("Tangent", 14, 2, 15, 1))
sketch10.addConstraint(Sketcher.Constraint("Tangent", 15, 2, 12, 1))
sketch10.addConstraint(Sketcher.Constraint("Vertical", 0))
sketch10.addConstraint(Sketcher.Constraint("Vertical", 2))
sketch10.addConstraint(Sketcher.Constraint("Vertical", 5))
sketch10.addConstraint(Sketcher.Constraint("Vertical", 7))
sketch10.addConstraint(Sketcher.Constraint("Vertical", 8))
sketch10.addConstraint(Sketcher.Constraint("Vertical", 10))
sketch10.addConstraint(Sketcher.Constraint("Vertical", 13))
sketch10.addConstraint(Sketcher.Constraint("Vertical", 15))
sketch10.addConstraint(Sketcher.Constraint("Equal", 3, 4))
sketch10.addConstraint(Sketcher.Constraint("Equal", 6, 9))
sketch10.addConstraint(Sketcher.Constraint("Equal", 11, 12))
sketch10.addConstraint(Sketcher.Constraint("Symmetric", 1, 3, 4, 3, -2))
sketch10.addConstraint(Sketcher.Constraint("Symmetric", 9, 3, 12, 3, -2))
sketch10.addConstraint(Sketcher.Constraint("Horizontal", 3, 3, 6, 3))
sketch10.addConstraint(Sketcher.Constraint("Horizontal", 11, 3, 14, 3))
sketch10.addConstraint(Sketcher.Constraint("Vertical", 6, 3, 9, 3))
sketch10.addConstraint(Sketcher.Constraint("Equal", 7, 8))
sketch10.addConstraint(Sketcher.Constraint("Radius", 1, Q("1.5 mm")))
sketch10.addConstraint(Sketcher.Constraint("DistanceY", 0, 2, 0, 1, Q("11 mm")))
sketch10.addConstraint(Sketcher.Constraint("DistanceX", 1, 3, -1, 1, Q("13 mm")))
sketch10.addConstraint(Sketcher.Constraint("DistanceY", -1, 1, 1, 3, Q("1 mm")))
sketch10.addConstraint(Sketcher.Constraint("DistanceY", 9, 3, -1, 1, Q("8 mm")))
pocket3 = body.newObject("PartDesign::Pocket", "Pocket002")
pocket3.Profile = sketch10
pocket3.Length = 4

sketch11 = body.newObject("Sketcher::SketchObject", "Sketch010")
sketch11.AttachmentSupport = (doc.getObject("XY_Plane"), [""])
sketch11.MapMode = "FlatFace"
sketch11.AttachmentOffset = App.Placement(V(0, 0, 4), App.Rotation())
sketch11.addGeometry(Part.LineSegment(V(4, -15, 0), V(4, 15, 0)), False)
sketch11.addGeometry(Part.ArcOfCircle(Part.Circle(V(0, 15, 0), V(0, 0, 1), 4), math.radians(0), math.radians(180)), False)
sketch11.addGeometry(Part.LineSegment(V(-4, 15, 0), V(-4, -15, 0)), False)
sketch11.addGeometry(Part.ArcOfCircle(Part.Circle(V(0, -15, 0), V(0, 0, 1), 4), math.radians(180), math.radians(360)), False)
sketch11.addConstraint(Sketcher.Constraint("Tangent", 0, 2, 1, 1))
sketch11.addConstraint(Sketcher.Constraint("Tangent", 1, 2, 2, 1))
sketch11.addConstraint(Sketcher.Constraint("Tangent", 2, 2, 3, 1))
sketch11.addConstraint(Sketcher.Constraint("Tangent", 3, 2, 0, 1))
sketch11.addConstraint(Sketcher.Constraint("Vertical", 0))
sketch11.addConstraint(Sketcher.Constraint("Vertical", 2))
sketch11.addConstraint(Sketcher.Constraint("Symmetric", 1, 3, 3, 3, -1, 1))
sketch11.addConstraint(Sketcher.Constraint("Radius", 1, Q("4 mm")))
sketch11.addConstraint(Sketcher.Constraint("DistanceY", 0, 1, 0, 2, Q("30 mm")))
pocket4 = body.newObject("PartDesign::Pocket", "Pocket003")
pocket4.Profile = sketch11
pocket4.Length = 4
doc.recompute()

fillet2 = body.newObject("PartDesign::Fillet", "Fillet001")
fillet2.Base = (pocket4, edges_at(pocket4, [
    (34, -17, 2),
    (34, 9, 2),
    (34, 17, 2),
    (-34, 17, 2),
    (-34, -17, 2),
    (-34, -25, 2),
    (-34, 9, 2),
    (34, -25, 2),
]))
fillet2.Radius = 0.5
doc.recompute()

fillet3 = body.newObject("PartDesign::Fillet", "Fillet002")
fillet3.Base = (fillet2, edges_at(fillet2, [
    (1, 31.5, 2),
    (1, 23.5, 2),
    (-11, 23.5, 2),
    (-11, 31.5, 2),
    (20, 31.5, 2),
    (20, 23.5, 2),
    (8, 23.5, 2),
    (8, 31.5, 2),
]))
fillet3.Radius = 2
doc.recompute()

fillet4 = body.newObject("PartDesign::Fillet", "Fillet003")
fillet4.Base = (fillet3, edges_at(fillet3, [
    (-38, -16, 2),
    (-38, 8, 2),
    (-38, 18, 2),
    (-38, 34, 2),
    (38, 34, 2),
    (38, 18, 2),
    (38, 8, 2),
    (38, -16, 2),
    (38, -26, 2),
    (38, -34, 2),
    (-38, -34, 2),
    (-38, -26, 2),
]))
fillet4.Radius = 1

sketch12 = body.newObject("Sketcher::SketchObject", "Sketch011")
sketch12.AttachmentSupport = (doc.getObject("XY_Plane"), [""])
sketch12.MapMode = "FlatFace"
sketch12.AttachmentOffset = App.Placement(V(0, 0, 4), App.Rotation())
sketch12.addGeometry(Part.LineSegment(V(-38, 34, 0), V(-38, 26, 0)), False)
sketch12.addGeometry(Part.LineSegment(V(-38, 26, 0), V(-30, 26, 0)), False)
sketch12.addGeometry(Part.LineSegment(V(-30, 26, 0), V(-30, 34, 0)), False)
sketch12.addGeometry(Part.LineSegment(V(-30, 34, 0), V(-38, 34, 0)), False)
sketch12.addGeometry(Part.LineSegment(V(30, 34, 0), V(30, 26, 0)), False)
sketch12.addGeometry(Part.LineSegment(V(30, 26, 0), V(38, 26, 0)), False)
sketch12.addGeometry(Part.LineSegment(V(38, 26, 0), V(38, 34, 0)), False)
sketch12.addGeometry(Part.LineSegment(V(38, 34, 0), V(30, 34, 0)), False)
sketch12.addConstraint(Sketcher.Constraint("Coincident", 0, 2, 1, 1))
sketch12.addConstraint(Sketcher.Constraint("Coincident", 1, 2, 2, 1))
sketch12.addConstraint(Sketcher.Constraint("Coincident", 2, 2, 3, 1))
sketch12.addConstraint(Sketcher.Constraint("Coincident", 3, 2, 0, 1))
sketch12.addConstraint(Sketcher.Constraint("Coincident", 4, 2, 5, 1))
sketch12.addConstraint(Sketcher.Constraint("Coincident", 5, 2, 6, 1))
sketch12.addConstraint(Sketcher.Constraint("Coincident", 6, 2, 7, 1))
sketch12.addConstraint(Sketcher.Constraint("Coincident", 7, 2, 4, 1))
sketch12.addConstraint(Sketcher.Constraint("Vertical", 0))
sketch12.addConstraint(Sketcher.Constraint("Horizontal", 1))
sketch12.addConstraint(Sketcher.Constraint("Vertical", 2))
sketch12.addConstraint(Sketcher.Constraint("Horizontal", 3))
sketch12.addConstraint(Sketcher.Constraint("Vertical", 4))
sketch12.addConstraint(Sketcher.Constraint("Horizontal", 5))
sketch12.addConstraint(Sketcher.Constraint("Vertical", 6))
sketch12.addConstraint(Sketcher.Constraint("Horizontal", 7))
sketch12.addConstraint(Sketcher.Constraint("Symmetric", 1, 2, 4, 2, -2))
sketch12.addConstraint(Sketcher.Constraint("Symmetric", 3, 2, 6, 2, -2))
sketch12.addConstraint(Sketcher.Constraint("Equal", 7, 0))
sketch12.addConstraint(Sketcher.Constraint("DistanceX", 1, 1, 1, 2, Q("8.5 mm")))
sketch12.addConstraint(Sketcher.Constraint("DistanceX", 0, 2, -1, 1, Q("38 mm")))
sketch12.addConstraint(Sketcher.Constraint("DistanceY", -1, 1, 2, 2, Q("34 mm")))
pocket5 = body.newObject("PartDesign::Pocket", "Pocket004")
pocket5.Profile = sketch12
pocket5.Length = 4
doc.recompute()

fillet5 = body.newObject("PartDesign::Fillet", "Fillet004")
fillet5.Base = (pocket5, edges_at(pocket5, [
    (-38, 25.5, 2),
    (-29.5, 34, 2),
    (-29.5, 25.5, 2),
    (29.5, 34, 2),
    (38, 25.5, 2),
    (29.5, 25.5, 2),
]))
fillet5.Radius = 0.5
doc.recompute()

boolean8 = body5.newObject("PartDesign::Boolean", "Boolean007")
boolean8.Type = "Cut"
boolean8.addObjects([body10])
doc.recompute()

fillet6 = body5.newObject("PartDesign::Fillet", "Fillet005")
fillet6.Base = (boolean8, edges_at(boolean8, [
    (30, -34, 7),
    (-30, -34, 7),
    (-30, -28, 7),
    (30, -28, 7),
]))
fillet6.Radius = 2

doc.recompute()
